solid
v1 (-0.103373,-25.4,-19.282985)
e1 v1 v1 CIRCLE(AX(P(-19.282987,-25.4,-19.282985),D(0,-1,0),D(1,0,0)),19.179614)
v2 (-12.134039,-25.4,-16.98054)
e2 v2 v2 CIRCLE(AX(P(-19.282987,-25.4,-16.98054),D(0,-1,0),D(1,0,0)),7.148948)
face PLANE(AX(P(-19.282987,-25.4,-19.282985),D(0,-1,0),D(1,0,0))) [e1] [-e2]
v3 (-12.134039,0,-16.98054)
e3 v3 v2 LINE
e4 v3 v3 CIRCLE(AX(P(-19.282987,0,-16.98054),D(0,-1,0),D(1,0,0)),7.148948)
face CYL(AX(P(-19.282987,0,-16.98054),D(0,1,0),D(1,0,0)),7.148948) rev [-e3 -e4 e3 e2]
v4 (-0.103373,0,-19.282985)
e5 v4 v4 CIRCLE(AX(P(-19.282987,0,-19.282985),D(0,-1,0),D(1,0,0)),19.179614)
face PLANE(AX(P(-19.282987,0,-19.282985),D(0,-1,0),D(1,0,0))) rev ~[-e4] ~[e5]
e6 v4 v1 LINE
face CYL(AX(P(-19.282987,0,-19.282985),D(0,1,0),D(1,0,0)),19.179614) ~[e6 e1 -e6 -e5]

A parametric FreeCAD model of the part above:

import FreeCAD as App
import Part
import Sketcher
from FreeCAD import Vector
Q = App.Units.Quantity

doc = App.newDocument("Part")
params = doc.addObject("Spreadsheet::Sheet", "Params")
for row, (alias, value) in enumerate([
    ("pad1_length", "1 in"),
], start=1):
    params.set(f"A{row}", alias)
    params.set(f"B{row}", "=" + value)
    params.setAlias(f"B{row}", alias)

body = doc.addObject("PartDesign::Body", "Body")

# Sketch on XZ plane
sketch1 = doc.addObject("Sketcher::SketchObject", "Sketch")
body.addObject(sketch1)
sketch1.AttachmentSupport = (doc.XZ_Plane, [""])
sketch1.MapMode = "FlatFace"
sketch1.addGeometry(Part.Circle(Vector(-19, -19, 0), Vector(0, 0, 1), 19), False)
sketch1.addGeometry(Part.Circle(Vector(-19, -17, 0), Vector(0, 0, 1), 7), False)
sketch1.addConstraint(Sketcher.Constraint("Vertical", 0, 3, 1, 3))
sketch1.addConstraint(Sketcher.Constraint("Diameter", 0, Q("38.359228 mm")))
sketch1.addConstraint(Sketcher.Constraint("Diameter", 1, Q("14.297896 mm")))
sketch1.addConstraint(Sketcher.Constraint("DistanceY", 1, 3, -1, 1, Q("16.98054 mm")))
sketch1.addConstraint(Sketcher.Constraint("DistanceX", 0, 3, -1, 1, Q("19.282987 mm")))
sketch1.addConstraint(Sketcher.Constraint("DistanceY", 0, 3, -1, 1, Q("19.282985 mm")))
pad1 = doc.addObject("PartDesign::Pad", "Pad")
body.addObject(pad1)
pad1.Profile = sketch1
pad1.setExpression("Length", "Params.pad1_length")

doc.recompute()
